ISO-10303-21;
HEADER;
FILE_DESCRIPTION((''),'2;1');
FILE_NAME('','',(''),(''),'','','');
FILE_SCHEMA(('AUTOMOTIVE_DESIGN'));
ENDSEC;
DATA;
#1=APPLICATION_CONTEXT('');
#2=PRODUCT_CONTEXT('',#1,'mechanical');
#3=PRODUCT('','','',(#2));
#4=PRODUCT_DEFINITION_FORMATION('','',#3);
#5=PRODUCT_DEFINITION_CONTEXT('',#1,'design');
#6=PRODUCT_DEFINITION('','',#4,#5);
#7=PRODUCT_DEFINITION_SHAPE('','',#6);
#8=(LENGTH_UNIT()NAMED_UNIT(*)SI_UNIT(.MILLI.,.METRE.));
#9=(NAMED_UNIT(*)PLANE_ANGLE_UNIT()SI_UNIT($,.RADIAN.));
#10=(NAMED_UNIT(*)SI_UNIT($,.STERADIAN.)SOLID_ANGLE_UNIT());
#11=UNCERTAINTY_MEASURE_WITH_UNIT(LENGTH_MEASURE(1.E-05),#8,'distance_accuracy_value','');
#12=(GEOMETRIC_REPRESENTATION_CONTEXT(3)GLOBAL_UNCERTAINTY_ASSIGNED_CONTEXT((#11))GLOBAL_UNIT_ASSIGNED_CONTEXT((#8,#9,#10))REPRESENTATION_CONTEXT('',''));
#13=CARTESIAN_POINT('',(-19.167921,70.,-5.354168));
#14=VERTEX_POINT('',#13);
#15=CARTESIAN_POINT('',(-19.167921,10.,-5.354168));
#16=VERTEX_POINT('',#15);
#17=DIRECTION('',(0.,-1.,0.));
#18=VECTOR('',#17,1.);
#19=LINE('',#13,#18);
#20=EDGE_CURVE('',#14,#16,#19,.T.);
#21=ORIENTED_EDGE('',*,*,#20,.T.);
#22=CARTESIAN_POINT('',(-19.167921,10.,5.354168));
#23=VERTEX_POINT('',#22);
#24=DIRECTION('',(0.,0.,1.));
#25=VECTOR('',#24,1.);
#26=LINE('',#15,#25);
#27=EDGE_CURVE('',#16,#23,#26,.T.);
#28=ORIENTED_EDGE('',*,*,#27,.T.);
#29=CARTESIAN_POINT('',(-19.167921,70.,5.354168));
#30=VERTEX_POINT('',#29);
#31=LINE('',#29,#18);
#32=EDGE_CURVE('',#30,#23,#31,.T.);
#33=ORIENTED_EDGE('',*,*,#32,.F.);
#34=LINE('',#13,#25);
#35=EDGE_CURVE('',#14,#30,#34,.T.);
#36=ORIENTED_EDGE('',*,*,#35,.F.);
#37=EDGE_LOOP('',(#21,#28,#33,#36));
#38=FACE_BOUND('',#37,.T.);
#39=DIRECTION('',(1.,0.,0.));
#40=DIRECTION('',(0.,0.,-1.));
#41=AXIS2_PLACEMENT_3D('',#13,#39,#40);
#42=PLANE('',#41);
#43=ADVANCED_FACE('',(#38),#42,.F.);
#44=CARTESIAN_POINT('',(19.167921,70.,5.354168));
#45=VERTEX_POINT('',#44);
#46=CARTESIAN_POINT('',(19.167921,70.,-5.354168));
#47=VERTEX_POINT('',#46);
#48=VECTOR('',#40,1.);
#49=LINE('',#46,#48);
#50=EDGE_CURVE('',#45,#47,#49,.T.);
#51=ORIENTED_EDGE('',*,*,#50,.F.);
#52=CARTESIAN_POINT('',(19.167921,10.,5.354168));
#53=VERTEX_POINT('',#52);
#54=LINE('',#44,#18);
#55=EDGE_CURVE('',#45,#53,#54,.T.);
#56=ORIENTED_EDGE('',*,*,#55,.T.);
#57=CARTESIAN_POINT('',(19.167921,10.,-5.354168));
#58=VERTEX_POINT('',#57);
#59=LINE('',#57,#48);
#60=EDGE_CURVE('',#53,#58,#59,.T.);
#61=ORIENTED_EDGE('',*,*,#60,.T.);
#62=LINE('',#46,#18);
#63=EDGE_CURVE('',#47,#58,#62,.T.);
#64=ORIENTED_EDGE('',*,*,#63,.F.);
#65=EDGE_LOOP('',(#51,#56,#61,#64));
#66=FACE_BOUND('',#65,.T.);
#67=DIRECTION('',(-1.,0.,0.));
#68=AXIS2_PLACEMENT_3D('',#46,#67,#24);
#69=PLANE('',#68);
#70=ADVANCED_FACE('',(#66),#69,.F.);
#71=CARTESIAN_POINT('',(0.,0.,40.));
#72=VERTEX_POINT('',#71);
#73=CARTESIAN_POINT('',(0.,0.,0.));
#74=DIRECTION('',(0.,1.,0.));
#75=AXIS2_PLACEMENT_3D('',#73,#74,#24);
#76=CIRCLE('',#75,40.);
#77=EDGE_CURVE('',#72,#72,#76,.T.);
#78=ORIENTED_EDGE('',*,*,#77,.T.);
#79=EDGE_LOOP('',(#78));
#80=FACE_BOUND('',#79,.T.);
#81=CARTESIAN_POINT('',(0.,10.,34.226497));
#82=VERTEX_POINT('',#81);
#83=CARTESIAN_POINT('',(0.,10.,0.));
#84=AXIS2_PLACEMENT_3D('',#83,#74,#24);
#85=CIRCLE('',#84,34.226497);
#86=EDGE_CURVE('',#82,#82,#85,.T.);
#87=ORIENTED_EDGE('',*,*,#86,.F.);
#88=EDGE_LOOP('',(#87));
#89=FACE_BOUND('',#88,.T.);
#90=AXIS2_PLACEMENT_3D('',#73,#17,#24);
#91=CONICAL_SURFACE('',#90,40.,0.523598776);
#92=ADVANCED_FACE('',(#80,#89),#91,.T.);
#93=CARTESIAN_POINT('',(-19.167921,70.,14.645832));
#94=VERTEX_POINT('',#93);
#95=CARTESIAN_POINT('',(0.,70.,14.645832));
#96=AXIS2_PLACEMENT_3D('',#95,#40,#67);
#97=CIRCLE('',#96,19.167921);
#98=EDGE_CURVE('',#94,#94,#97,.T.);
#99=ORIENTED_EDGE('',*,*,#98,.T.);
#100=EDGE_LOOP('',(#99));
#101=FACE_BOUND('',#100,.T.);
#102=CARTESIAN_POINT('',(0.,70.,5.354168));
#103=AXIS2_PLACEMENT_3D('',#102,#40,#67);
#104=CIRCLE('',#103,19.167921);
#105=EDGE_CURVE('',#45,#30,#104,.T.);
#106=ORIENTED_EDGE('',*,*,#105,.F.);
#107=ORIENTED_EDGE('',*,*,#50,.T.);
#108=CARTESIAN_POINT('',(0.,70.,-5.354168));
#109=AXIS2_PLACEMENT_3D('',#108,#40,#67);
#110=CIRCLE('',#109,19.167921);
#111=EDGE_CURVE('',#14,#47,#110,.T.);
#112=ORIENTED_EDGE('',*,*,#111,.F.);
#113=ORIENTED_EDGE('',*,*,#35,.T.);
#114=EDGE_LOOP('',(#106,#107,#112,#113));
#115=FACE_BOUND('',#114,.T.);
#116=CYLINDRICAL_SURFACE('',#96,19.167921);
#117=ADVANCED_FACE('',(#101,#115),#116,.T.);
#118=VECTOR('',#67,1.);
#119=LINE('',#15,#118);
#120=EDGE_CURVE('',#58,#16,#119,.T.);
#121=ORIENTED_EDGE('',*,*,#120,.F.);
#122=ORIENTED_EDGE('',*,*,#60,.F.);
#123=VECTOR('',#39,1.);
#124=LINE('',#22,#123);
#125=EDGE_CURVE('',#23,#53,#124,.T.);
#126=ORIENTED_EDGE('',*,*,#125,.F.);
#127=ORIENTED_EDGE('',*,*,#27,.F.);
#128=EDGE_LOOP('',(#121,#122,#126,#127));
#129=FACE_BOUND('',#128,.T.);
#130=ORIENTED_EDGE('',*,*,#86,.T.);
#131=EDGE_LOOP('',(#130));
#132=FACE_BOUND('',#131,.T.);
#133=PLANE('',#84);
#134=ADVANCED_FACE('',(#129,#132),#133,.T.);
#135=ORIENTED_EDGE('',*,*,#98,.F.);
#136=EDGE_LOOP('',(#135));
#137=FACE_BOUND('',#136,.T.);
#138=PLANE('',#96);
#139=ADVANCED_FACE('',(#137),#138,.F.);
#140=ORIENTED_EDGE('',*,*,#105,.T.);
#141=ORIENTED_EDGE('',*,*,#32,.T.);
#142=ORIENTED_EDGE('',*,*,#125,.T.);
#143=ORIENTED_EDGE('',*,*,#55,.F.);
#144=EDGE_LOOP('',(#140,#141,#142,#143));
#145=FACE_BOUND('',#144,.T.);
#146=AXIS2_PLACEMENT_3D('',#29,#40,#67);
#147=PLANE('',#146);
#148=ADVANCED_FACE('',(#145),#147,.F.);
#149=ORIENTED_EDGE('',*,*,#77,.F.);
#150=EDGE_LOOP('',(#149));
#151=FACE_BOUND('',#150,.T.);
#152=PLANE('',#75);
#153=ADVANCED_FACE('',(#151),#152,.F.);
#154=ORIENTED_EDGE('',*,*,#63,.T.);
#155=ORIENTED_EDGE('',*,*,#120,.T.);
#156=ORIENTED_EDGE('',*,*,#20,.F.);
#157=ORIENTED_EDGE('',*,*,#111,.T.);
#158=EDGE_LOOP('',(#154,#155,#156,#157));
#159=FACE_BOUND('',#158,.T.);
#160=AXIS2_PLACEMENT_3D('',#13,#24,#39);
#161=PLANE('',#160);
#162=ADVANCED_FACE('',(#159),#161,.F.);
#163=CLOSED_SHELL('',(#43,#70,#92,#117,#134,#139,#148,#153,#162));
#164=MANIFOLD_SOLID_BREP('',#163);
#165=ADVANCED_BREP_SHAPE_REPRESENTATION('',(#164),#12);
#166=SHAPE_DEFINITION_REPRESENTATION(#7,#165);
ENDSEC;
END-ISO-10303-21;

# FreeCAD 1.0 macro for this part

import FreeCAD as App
import Part
import Sketcher
Q = App.Units.Quantity


def add_polygon(sketch, points):
    """Adds a closed chain of lines whose ends are joined by coincident constraints."""
    first, n = sketch.GeometryCount, len(points)
    for a, b in zip(points, points[1:] + points[:1]):
        sketch.addGeometry(Part.LineSegment(App.Vector(*a, 0), App.Vector(*b, 0)), False)
    for i in range(n):
        sketch.addConstraint(Sketcher.Constraint("Coincident", first + i, 2, first + (i + 1) % n, 1))

doc = App.newDocument("Part")
body = doc.addObject("PartDesign::Body", "Body")

# Sketch on XZ plane
sketch1 = body.newObject("Sketcher::SketchObject", "Sketch")
sketch1.AttachmentSupport = (doc.getObject("XZ_Plane"), [""])
sketch1.MapMode = "FlatFace"
sketch1.addGeometry(Part.Circle(App.Vector(0, 0, 0), App.Vector(0, 0, 1), 40), False)
sketch1.addConstraint([
    Sketcher.Constraint("Coincident", 0, 3, -1, 1),
    Sketcher.Constraint("Diameter", 0, Q("80 mm")),
])
pad1 = body.newObject("PartDesign::Pad", "Pad")
pad1.Profile = sketch1
pad1.Length = 10
pad1.Reversed = True
pad1.TaperAngle = -30

# Sketch on XZ plane
sketch2 = body.newObject("Sketcher::SketchObject", "Sketch001")
sketch2.AttachmentSupport = (doc.getObject("XZ_Plane"), [""])
sketch2.MapMode = "FlatFace"
sketch2.AttachmentOffset = App.Placement(App.Vector(0, 0, -10), App.Rotation())
add_polygon(sketch2, [(-19, -5), (-19, 5), (19, 5), (19, -5)])  # lines 0-3
sketch2.addConstraint([
    Sketcher.Constraint("Vertical", 0),
    Sketcher.Constraint("Horizontal", 1),
    Sketcher.Constraint("Vertical", 2),
    Sketcher.Constraint("Horizontal", 3),
    Sketcher.Constraint("Symmetric", 0, 2, 2, 2, -1, 1),
    Sketcher.Constraint("DistanceX", 1, 1, 1, 2, Q("38.335841 mm")),
    Sketcher.Constraint("DistanceY", 0, 1, 0, 2, Q("10.708335 mm")),
])
pad2 = body.newObject("PartDesign::Pad", "Pad001")
pad2.Profile = sketch2
pad2.Length = 60
pad2.Reversed = True

# Sketch on XY plane
sketch3 = body.newObject("Sketcher::SketchObject", "Sketch002")
sketch3.AttachmentSupport = (doc.getObject("XY_Plane"), [""])
sketch3.MapMode = "FlatFace"
sketch3.AttachmentOffset = App.Placement(App.Vector(0, 0, -5.354168), App.Rotation())
sketch3.addGeometry(Part.Circle(App.Vector(0, 70, 0), App.Vector(0, 0, 1), 19), False)
sketch3.addConstraint([
    Sketcher.Constraint("PointOnObject", 0, 3, -2),
    Sketcher.Constraint("DistanceY", -1, 1, 0, 3, Q("70 mm")),
    Sketcher.Constraint("Diameter", 0, Q("38.335841 mm")),
])
pad3 = body.newObject("PartDesign::Pad", "Pad002")
pad3.Profile = sketch3
pad3.Length = 20

doc.recompute()
